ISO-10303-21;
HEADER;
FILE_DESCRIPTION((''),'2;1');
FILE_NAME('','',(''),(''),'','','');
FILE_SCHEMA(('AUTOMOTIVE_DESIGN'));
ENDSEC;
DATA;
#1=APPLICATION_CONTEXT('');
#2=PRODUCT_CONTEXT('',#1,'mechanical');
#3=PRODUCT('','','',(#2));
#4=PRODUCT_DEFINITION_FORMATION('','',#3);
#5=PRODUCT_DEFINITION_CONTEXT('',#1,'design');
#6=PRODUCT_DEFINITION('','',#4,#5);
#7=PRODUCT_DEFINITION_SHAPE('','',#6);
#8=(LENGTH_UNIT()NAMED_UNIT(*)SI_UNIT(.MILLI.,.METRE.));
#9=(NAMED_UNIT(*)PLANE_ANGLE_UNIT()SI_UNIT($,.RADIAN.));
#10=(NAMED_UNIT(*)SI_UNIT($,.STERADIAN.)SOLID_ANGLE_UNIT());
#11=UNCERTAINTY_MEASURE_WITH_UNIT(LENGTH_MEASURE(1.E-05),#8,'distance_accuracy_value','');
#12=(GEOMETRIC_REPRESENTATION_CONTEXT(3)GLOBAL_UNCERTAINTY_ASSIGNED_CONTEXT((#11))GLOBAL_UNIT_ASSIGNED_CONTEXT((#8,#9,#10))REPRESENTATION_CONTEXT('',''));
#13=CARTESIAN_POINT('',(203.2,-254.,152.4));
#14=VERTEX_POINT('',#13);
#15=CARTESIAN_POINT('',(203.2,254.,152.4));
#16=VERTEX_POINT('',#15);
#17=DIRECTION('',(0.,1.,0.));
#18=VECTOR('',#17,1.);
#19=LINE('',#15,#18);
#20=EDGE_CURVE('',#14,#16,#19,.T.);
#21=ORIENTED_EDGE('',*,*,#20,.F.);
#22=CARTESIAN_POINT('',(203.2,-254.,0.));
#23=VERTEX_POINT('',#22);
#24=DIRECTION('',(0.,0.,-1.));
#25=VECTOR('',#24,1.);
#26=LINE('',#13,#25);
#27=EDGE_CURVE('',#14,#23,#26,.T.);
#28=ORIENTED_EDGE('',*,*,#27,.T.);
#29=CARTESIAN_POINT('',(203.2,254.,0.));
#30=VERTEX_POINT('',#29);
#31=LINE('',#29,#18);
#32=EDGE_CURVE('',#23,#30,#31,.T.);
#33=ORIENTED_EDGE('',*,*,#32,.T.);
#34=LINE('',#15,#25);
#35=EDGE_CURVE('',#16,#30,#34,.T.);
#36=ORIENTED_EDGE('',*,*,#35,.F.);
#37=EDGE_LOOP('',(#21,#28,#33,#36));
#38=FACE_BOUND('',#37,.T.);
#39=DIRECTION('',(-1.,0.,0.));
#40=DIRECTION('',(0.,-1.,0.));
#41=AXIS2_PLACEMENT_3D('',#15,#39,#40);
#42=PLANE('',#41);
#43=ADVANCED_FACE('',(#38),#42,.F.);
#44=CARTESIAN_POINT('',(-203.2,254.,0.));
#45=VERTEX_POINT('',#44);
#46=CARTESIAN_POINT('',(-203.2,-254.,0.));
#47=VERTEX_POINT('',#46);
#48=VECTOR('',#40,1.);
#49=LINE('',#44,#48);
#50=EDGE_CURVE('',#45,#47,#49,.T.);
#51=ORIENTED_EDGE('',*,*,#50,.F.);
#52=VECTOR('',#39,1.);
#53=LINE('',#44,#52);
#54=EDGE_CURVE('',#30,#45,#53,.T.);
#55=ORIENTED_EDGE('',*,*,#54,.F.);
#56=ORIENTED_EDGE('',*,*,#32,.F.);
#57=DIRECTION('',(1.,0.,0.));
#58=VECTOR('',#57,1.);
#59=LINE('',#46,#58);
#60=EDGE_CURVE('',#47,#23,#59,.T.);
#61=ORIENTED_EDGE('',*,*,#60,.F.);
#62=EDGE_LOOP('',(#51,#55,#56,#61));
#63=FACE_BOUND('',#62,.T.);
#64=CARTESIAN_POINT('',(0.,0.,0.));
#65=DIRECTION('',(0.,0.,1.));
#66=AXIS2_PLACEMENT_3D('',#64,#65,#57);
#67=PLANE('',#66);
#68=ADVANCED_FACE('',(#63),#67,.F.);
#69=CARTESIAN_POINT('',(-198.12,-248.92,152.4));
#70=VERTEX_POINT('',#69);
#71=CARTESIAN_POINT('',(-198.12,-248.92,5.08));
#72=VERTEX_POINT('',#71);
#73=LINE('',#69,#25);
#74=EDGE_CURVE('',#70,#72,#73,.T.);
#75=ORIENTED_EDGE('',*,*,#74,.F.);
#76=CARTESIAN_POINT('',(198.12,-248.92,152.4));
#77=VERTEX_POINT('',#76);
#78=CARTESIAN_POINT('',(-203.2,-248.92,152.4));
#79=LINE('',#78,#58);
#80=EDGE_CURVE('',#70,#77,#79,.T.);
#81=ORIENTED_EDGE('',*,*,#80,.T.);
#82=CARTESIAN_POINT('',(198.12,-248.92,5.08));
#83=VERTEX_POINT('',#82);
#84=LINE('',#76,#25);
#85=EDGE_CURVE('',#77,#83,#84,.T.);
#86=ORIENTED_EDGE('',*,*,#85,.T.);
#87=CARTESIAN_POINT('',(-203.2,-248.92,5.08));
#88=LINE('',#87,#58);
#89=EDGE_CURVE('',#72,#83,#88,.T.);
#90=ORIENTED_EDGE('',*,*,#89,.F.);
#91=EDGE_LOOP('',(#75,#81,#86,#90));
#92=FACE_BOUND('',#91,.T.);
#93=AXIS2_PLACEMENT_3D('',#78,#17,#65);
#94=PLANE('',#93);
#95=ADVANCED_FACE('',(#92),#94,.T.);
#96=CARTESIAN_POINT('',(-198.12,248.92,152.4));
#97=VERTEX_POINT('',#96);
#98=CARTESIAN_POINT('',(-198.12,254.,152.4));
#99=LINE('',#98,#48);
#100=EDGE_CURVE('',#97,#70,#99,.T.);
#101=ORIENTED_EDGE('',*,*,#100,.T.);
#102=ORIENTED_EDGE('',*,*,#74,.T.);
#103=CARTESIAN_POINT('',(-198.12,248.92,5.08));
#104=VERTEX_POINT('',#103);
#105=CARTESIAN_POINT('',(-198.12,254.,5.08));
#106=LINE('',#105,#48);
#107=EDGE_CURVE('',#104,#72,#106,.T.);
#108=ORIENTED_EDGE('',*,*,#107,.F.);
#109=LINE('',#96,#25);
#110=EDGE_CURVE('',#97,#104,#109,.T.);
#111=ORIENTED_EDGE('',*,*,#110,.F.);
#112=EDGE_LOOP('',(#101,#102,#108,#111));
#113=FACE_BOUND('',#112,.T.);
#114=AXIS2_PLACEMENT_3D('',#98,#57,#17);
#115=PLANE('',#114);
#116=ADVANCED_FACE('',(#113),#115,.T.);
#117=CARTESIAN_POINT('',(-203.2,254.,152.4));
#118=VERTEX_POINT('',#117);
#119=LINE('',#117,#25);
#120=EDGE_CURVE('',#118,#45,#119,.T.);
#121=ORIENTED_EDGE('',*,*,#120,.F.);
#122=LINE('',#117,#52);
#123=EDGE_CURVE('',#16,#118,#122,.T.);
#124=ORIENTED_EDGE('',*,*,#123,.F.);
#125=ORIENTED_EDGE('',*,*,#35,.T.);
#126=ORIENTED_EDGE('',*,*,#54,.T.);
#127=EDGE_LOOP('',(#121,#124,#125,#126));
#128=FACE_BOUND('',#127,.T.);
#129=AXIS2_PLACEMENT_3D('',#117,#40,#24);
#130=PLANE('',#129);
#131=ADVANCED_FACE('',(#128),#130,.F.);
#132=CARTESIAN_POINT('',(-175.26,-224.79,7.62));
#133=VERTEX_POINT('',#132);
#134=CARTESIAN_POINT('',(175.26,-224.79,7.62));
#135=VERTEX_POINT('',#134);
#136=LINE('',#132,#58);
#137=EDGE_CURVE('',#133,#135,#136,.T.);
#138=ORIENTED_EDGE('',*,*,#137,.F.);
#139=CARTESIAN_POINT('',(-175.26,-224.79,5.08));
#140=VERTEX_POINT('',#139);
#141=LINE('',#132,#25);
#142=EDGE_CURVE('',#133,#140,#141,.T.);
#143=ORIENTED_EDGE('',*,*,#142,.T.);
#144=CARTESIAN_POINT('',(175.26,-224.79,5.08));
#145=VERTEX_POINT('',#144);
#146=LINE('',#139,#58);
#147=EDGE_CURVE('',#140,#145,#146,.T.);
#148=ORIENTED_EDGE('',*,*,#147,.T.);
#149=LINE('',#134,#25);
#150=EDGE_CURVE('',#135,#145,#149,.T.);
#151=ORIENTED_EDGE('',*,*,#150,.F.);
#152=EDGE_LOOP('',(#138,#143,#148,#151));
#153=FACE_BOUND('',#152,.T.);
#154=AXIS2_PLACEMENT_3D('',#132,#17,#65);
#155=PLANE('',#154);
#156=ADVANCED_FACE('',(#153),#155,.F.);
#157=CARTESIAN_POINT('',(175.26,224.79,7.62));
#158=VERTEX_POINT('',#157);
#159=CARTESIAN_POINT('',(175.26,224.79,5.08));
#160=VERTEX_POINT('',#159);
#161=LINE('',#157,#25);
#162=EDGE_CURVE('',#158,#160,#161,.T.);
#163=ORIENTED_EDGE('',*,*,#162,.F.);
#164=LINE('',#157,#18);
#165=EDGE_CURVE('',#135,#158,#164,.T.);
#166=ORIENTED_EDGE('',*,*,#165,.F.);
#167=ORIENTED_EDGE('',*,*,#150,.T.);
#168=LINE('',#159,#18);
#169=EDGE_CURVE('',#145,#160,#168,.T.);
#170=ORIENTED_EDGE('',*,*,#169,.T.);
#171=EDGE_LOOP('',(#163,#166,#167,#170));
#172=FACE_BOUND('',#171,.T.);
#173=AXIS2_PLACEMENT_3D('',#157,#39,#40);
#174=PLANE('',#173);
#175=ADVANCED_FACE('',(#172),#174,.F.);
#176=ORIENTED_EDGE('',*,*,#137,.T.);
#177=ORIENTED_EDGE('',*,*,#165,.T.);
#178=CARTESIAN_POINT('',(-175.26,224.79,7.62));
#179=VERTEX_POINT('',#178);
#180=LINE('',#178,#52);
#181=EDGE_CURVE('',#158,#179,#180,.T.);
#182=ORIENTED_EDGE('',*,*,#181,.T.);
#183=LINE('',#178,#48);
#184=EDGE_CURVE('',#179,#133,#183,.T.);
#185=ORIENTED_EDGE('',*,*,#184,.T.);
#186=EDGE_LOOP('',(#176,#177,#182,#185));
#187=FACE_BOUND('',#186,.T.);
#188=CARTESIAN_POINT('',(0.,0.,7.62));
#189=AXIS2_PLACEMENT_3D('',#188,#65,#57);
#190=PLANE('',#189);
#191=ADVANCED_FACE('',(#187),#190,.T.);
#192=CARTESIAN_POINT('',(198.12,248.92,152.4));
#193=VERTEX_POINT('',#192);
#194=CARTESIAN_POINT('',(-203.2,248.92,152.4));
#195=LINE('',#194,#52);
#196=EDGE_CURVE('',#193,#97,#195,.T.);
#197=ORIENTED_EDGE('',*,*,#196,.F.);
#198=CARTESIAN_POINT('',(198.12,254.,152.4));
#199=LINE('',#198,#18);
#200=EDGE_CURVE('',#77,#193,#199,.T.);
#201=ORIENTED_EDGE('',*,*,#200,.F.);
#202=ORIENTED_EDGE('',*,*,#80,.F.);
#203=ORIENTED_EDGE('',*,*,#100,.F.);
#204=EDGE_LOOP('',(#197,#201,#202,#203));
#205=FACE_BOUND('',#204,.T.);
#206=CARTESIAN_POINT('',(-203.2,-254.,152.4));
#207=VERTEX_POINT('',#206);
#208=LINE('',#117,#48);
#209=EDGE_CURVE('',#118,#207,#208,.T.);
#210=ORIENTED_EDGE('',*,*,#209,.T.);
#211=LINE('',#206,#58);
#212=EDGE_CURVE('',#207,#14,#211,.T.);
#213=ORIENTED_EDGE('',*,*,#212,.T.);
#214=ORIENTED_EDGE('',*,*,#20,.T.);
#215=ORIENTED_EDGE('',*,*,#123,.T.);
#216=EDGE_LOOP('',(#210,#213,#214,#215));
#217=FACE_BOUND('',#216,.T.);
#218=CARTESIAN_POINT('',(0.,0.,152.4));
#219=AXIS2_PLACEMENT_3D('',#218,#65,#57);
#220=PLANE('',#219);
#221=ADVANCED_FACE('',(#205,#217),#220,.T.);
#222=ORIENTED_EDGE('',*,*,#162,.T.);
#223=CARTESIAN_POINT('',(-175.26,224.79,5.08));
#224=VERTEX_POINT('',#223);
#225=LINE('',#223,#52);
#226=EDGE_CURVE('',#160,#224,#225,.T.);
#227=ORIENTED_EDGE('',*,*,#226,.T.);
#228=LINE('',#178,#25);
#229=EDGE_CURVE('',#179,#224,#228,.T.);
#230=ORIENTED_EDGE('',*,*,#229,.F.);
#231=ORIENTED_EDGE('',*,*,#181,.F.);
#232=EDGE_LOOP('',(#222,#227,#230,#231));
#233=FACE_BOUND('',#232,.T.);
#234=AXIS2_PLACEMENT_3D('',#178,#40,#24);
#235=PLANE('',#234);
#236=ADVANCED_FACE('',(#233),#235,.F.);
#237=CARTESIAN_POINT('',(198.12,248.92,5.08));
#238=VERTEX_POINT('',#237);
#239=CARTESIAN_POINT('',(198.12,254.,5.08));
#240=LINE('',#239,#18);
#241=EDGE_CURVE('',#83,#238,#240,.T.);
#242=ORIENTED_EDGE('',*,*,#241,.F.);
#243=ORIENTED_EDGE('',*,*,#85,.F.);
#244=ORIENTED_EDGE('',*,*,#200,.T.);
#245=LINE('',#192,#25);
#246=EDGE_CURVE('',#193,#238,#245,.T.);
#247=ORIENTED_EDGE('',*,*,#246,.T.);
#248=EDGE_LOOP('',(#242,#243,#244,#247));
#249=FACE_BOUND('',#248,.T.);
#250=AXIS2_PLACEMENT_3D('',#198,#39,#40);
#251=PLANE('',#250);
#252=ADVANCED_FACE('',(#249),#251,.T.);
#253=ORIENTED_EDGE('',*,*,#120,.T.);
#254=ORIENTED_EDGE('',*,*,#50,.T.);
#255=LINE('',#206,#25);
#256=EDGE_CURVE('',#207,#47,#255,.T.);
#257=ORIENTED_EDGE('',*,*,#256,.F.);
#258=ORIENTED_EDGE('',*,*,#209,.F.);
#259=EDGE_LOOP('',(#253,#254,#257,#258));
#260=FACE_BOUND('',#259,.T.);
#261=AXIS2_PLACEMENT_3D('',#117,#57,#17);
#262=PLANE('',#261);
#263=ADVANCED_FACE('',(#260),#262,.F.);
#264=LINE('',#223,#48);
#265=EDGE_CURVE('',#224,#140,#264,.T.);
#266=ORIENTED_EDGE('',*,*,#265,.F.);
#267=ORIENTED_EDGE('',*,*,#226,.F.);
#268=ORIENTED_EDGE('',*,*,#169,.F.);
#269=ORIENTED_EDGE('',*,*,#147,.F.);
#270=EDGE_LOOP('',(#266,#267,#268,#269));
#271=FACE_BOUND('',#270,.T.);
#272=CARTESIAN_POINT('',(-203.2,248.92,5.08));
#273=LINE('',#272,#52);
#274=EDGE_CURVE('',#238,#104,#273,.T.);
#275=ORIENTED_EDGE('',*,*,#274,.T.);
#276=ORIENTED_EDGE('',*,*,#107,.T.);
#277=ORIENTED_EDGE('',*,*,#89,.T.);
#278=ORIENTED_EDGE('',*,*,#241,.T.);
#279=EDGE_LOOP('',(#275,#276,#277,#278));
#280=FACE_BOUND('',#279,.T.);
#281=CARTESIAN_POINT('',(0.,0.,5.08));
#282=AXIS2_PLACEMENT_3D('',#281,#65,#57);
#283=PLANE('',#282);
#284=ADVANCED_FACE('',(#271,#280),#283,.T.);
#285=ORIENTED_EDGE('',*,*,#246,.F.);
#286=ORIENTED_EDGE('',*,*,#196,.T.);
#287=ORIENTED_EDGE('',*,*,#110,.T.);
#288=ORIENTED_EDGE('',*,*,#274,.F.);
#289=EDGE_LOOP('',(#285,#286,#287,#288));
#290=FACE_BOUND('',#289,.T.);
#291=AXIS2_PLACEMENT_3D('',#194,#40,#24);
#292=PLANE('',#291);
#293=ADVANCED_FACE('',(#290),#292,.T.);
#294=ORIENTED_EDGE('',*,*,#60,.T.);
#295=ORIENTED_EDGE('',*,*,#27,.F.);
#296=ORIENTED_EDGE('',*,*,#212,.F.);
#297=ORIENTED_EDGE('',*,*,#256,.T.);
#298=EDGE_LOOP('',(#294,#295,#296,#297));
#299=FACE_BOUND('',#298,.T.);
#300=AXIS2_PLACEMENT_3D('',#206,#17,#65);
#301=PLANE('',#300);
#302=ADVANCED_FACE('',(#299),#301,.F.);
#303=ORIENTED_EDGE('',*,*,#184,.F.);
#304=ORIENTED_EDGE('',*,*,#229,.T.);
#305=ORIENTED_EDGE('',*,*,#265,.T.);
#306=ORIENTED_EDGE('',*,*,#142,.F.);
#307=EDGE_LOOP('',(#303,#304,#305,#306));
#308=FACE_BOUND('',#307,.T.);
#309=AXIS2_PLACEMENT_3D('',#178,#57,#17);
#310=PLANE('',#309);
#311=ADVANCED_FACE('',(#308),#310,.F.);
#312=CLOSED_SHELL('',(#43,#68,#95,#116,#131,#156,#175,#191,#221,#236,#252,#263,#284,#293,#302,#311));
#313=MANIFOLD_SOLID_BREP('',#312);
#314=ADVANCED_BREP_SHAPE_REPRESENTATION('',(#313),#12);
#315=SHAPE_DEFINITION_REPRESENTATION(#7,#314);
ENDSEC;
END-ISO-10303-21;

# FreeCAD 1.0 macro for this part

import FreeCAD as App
import Part
import Sketcher

V = App.Vector
Q = App.Units.Quantity


def faces_at(feature, points):
    """Names of the faces that lie closest to the given points."""
    faces = feature.Shape.Faces
    near = lambda p: min(range(len(faces)), key=lambda i: faces[i].distToShape(Part.Vertex(*p))[0])
    return sorted({f"Face{near(p) + 1}" for p in points})

doc = App.newDocument("Part")
body = doc.addObject("PartDesign::Body", "Body")

# Sketch on XY plane
sketch1 = body.newObject("Sketcher::SketchObject", "Sketch")
sketch1.AttachmentSupport = (doc.getObject("XY_Plane"), [""])
sketch1.MapMode = "FlatFace"
sketch1.addGeometry(Part.LineSegment(V(-203, 254, 0), V(-203, -254, 0)), False)
sketch1.addGeometry(Part.LineSegment(V(-203, -254, 0), V(203, -254, 0)), False)
sketch1.addGeometry(Part.LineSegment(V(203, -254, 0), V(203, 254, 0)), False)
sketch1.addGeometry(Part.LineSegment(V(203, 254, 0), V(-203, 254, 0)), False)
sketch1.addConstraint(Sketcher.Constraint("Coincident", 0, 2, 1, 1))
sketch1.addConstraint(Sketcher.Constraint("Coincident", 1, 2, 2, 1))
sketch1.addConstraint(Sketcher.Constraint("Coincident", 2, 2, 3, 1))
sketch1.addConstraint(Sketcher.Constraint("Coincident", 3, 2, 0, 1))
sketch1.addConstraint(Sketcher.Constraint("Vertical", 0))
sketch1.addConstraint(Sketcher.Constraint("Horizontal", 1))
sketch1.addConstraint(Sketcher.Constraint("Vertical", 2))
sketch1.addConstraint(Sketcher.Constraint("Horizontal", 3))
sketch1.addConstraint(Sketcher.Constraint("Symmetric", 0, 2, 2, 2, -1, 1))
sketch1.addConstraint(Sketcher.Constraint("DistanceX", 1, 1, 1, 2, Q("16 in")))
sketch1.addConstraint(Sketcher.Constraint("DistanceY", 0, 2, 0, 1, Q("20 in")))
pad1 = body.newObject("PartDesign::Pad", "Pad")
pad1.Profile = sketch1
pad1.Length = Q("6 in")
doc.recompute()

thickness = body.newObject("PartDesign::Thickness", "Thickness")
thickness.Base = (pad1, faces_at(pad1, [(0, 0, 152.4)]))
thickness.Value = Q("0.2 in")
thickness.Reversed = True
thickness.Join = "Intersection"

# Sketch on XY plane
sketch2 = body.newObject("Sketcher::SketchObject", "Sketch001")
sketch2.AttachmentSupport = (doc.getObject("XY_Plane"), [""])
sketch2.MapMode = "FlatFace"
sketch2.AttachmentOffset = App.Placement(V(0, 0, 0.2 * 25.4), App.Rotation())
sketch2.addGeometry(Part.LineSegment(V(-175, 225, 0), V(-175, -225, 0)), False)
sketch2.addGeometry(Part.LineSegment(V(-175, -225, 0), V(175, -225, 0)), False)
sketch2.addGeometry(Part.LineSegment(V(175, -225, 0), V(175, 225, 0)), False)
sketch2.addGeometry(Part.LineSegment(V(175, 225, 0), V(-175, 225, 0)), False)
sketch2.addConstraint(Sketcher.Constraint("Coincident", 0, 2, 1, 1))
sketch2.addConstraint(Sketcher.Constraint("Coincident", 1, 2, 2, 1))
sketch2.addConstraint(Sketcher.Constraint("Coincident", 2, 2, 3, 1))
sketch2.addConstraint(Sketcher.Constraint("Coincident", 3, 2, 0, 1))
sketch2.addConstraint(Sketcher.Constraint("Vertical", 0))
sketch2.addConstraint(Sketcher.Constraint("Horizontal", 1))
sketch2.addConstraint(Sketcher.Constraint("Vertical", 2))
sketch2.addConstraint(Sketcher.Constraint("Horizontal", 3))
sketch2.addConstraint(Sketcher.Constraint("Symmetric", 0, 2, 2, 2, -1, 1))
sketch2.addConstraint(Sketcher.Constraint("DistanceX", 1, 1, 1, 2, Q("13.8 in")))
sketch2.addConstraint(Sketcher.Constraint("DistanceY", 0, 2, 0, 1, Q("17.7 in")))
pad2 = body.newObject("PartDesign::Pad", "Pad001")
pad2.Profile = sketch2
pad2.Length = Q("0.1 in")

doc.recompute()
